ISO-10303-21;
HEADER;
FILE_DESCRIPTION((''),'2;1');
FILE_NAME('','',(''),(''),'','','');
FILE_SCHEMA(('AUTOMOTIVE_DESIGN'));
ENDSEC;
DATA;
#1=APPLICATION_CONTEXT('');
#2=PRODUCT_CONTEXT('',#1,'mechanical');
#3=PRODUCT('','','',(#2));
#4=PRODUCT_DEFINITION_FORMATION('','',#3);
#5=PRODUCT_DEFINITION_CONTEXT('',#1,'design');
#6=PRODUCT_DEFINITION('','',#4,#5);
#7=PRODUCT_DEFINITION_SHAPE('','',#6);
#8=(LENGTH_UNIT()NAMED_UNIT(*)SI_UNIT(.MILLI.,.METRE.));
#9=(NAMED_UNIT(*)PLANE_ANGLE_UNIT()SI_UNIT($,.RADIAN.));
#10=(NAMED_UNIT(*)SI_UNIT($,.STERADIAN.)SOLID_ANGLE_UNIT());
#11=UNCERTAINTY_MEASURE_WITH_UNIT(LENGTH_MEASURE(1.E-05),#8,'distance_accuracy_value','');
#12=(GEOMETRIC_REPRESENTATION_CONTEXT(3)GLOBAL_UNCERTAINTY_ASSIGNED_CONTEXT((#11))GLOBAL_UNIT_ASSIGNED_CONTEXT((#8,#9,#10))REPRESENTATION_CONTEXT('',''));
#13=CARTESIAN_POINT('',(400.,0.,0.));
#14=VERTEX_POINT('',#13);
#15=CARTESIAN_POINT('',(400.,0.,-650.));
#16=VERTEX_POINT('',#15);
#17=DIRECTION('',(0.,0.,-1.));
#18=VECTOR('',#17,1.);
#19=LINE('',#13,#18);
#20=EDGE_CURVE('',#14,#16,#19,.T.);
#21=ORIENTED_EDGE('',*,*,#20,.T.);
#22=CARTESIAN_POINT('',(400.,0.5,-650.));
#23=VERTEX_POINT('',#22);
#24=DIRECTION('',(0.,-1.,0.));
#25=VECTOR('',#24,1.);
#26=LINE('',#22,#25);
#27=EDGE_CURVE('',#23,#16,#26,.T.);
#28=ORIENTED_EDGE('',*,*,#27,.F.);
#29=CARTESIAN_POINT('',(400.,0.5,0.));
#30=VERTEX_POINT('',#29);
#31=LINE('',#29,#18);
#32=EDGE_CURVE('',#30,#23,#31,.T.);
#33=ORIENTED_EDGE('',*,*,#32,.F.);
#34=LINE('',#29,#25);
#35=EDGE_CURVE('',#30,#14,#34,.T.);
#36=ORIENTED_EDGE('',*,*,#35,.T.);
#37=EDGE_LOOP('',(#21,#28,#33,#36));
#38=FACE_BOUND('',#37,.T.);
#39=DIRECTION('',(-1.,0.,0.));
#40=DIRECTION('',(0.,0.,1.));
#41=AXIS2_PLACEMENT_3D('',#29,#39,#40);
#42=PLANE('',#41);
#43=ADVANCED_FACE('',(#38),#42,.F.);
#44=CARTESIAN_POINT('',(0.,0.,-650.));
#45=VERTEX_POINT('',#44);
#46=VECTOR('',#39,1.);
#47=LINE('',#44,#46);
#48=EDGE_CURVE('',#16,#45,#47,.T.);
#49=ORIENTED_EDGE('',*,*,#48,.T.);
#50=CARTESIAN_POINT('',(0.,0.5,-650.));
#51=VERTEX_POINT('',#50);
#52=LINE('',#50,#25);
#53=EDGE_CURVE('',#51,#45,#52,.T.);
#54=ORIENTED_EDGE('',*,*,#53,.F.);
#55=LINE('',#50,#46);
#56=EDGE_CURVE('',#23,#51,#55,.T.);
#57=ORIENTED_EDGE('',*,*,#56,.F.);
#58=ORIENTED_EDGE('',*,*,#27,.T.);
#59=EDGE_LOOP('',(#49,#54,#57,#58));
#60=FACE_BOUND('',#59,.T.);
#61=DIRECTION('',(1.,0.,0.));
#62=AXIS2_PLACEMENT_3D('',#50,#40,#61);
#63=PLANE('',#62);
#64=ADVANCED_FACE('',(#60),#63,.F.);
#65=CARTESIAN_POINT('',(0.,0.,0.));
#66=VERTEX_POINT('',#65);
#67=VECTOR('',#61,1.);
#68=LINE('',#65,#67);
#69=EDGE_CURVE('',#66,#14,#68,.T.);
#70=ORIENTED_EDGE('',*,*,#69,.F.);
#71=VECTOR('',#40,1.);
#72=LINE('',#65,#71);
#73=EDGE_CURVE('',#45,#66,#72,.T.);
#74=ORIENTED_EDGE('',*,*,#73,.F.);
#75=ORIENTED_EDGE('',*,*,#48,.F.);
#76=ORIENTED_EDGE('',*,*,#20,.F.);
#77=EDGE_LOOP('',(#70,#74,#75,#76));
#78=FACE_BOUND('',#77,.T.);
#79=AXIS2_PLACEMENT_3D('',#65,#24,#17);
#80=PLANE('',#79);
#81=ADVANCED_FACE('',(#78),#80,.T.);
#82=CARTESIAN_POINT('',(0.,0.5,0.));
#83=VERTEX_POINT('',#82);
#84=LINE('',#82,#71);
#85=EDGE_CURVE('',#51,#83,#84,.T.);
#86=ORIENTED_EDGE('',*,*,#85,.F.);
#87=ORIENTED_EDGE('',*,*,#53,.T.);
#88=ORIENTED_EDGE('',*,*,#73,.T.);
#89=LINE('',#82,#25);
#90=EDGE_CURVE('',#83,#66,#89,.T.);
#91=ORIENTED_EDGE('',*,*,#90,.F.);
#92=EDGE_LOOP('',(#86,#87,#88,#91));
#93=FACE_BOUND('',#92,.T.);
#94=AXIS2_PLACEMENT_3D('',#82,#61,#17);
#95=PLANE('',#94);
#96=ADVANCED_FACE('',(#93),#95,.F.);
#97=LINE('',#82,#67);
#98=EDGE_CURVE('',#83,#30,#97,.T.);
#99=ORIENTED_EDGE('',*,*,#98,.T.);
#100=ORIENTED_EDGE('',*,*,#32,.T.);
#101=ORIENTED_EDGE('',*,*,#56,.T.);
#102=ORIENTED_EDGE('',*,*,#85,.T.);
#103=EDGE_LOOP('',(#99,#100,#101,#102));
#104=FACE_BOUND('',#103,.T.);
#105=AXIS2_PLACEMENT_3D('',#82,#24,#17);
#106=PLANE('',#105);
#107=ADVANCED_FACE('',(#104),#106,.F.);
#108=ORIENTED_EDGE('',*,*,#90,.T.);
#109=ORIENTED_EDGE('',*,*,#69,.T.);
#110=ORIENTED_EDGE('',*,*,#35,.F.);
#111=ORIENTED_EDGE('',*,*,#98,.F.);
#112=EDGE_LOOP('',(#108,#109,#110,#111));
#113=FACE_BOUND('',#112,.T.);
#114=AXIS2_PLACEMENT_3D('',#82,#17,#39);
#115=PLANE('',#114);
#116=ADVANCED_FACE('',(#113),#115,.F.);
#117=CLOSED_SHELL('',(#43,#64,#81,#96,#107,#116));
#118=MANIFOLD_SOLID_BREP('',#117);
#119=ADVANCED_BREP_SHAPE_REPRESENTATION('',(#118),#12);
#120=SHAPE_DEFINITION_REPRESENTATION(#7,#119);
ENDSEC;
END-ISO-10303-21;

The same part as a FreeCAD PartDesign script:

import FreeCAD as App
import Part
import Sketcher
from FreeCAD import Vector


def add_polygon(sketch, points):
    """Adds a closed chain of lines whose ends are joined by coincident constraints."""
    first, n = sketch.GeometryCount, len(points)
    for a, b in zip(points, points[1:] + points[:1]):
        sketch.addGeometry(Part.LineSegment(App.Vector(*a, 0), App.Vector(*b, 0)), False)
    for i in range(n):
        sketch.addConstraint(Sketcher.Constraint("Coincident", first + i, 2, first + (i + 1) % n, 1))

doc = App.newDocument("Part")
body = doc.addObject("PartDesign::Body", "Body")

# Sketch on XZ plane
sketch1 = doc.addObject("Sketcher::SketchObject", "Sketch")
body.addObject(sketch1)
sketch1.AttachmentSupport = (doc.XZ_Plane, [""])
sketch1.MapMode = "FlatFace"
add_polygon(sketch1, [(0, -650), (0, 0), (400, 0), (400, -650)])  # lines 0-3
sketch1.addConstraint(Sketcher.Constraint("Vertical", 0))
sketch1.addConstraint(Sketcher.Constraint("Horizontal", 1))
sketch1.addConstraint(Sketcher.Constraint("Vertical", 2))
sketch1.addConstraint(Sketcher.Constraint("Horizontal", 3))
sketch1.addConstraint(Sketcher.Constraint("Coincident", 0, 2, -1, 1))
sketch1.addConstraint(Sketcher.Constraint("DistanceX", 1, 1, 1, 2, 400.0))
sketch1.addConstraint(Sketcher.Constraint("DistanceY", 0, 1, 0, 2, 650.0))
pad1 = doc.addObject("PartDesign::Pad", "Pad")
body.addObject(pad1)
pad1.Profile = sketch1
pad1.Length = 0.5
pad1.Reversed = True

doc.recompute()
